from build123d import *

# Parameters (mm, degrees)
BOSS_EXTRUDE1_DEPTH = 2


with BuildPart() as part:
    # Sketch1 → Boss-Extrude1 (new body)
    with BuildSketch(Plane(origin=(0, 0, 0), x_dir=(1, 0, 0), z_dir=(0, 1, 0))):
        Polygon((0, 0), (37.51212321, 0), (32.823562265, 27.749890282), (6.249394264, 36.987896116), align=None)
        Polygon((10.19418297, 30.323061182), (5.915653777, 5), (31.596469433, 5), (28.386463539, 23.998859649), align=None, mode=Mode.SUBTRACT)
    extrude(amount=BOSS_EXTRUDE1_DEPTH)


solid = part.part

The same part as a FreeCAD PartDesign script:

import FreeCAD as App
import Part
import Sketcher
from FreeCAD import Vector
Q = App.Units.Quantity

doc = App.newDocument("Part")
body = doc.addObject("PartDesign::Body", "Body")

# Sketch on XZ plane
sketch1 = body.newObject("Sketcher::SketchObject", "Sketch")
sketch1.AttachmentSupport = (doc.getObject("XZ_Plane"), [""])
sketch1.MapMode = "FlatFace"
sketch1.addGeometry([
    Part.LineSegment(Vector(0, 0, 0), Vector(38, 0, 0)),  # 0
    Part.LineSegment(Vector(38, 0, 0), Vector(33, -28, 0)),  # 1
    Part.LineSegment(Vector(33, -28, 0), Vector(6, -37, 0)),  # 2
    Part.LineSegment(Vector(6, -37, 0), Vector(0, 0, 0)),  # 3
    Part.LineSegment(Vector(6, -5, 0), Vector(10, -30, 0)),  # 4
    Part.LineSegment(Vector(10, -30, 0), Vector(28, -24, 0)),  # 5
    Part.LineSegment(Vector(28, -24, 0), Vector(32, -5, 0)),  # 6
    Part.LineSegment(Vector(32, -5, 0), Vector(6, -5, 0)),  # 7
], False)
sketch1.addConstraint([
    Sketcher.Constraint("Coincident", 0, 2, 1, 1),
    Sketcher.Constraint("Coincident", 1, 2, 2, 1),
    Sketcher.Constraint("Coincident", 2, 2, 3, 1),
    Sketcher.Constraint("Coincident", 3, 2, 0, 1),
    Sketcher.Constraint("Coincident", 4, 2, 5, 1),
    Sketcher.Constraint("Coincident", 5, 2, 6, 1),
    Sketcher.Constraint("Coincident", 6, 2, 7, 1),
    Sketcher.Constraint("Coincident", 7, 2, 4, 1),
    Sketcher.Constraint("Horizontal", 0),
    Sketcher.Constraint("Horizontal", 7),
    Sketcher.Constraint("Coincident", 3, 2, -1, 1),
    Sketcher.Constraint("Parallel", 3, 4),
    Sketcher.Constraint("Parallel", 2, 5),
    Sketcher.Constraint("Parallel", 1, 6),
    Sketcher.Constraint("DistanceY", 6, 2, -1, 1, Q("5 mm")),
    Sketcher.Constraint("Angle", 1, Q("-99.59 deg")),
    Sketcher.Constraint("Angle", 3, Q("99.59 deg")),
    Sketcher.Constraint("DistanceX", 5, 2, 1, 2, Q("4.437099 mm")),
    Sketcher.Constraint("DistanceY", 4, 2, 5, 2, Q("6.324202 mm")),
    Sketcher.Constraint("Distance", 5, Q("19.260182 mm")),
    Sketcher.Constraint("Distance", 6, Q("19.268129 mm")),
    Sketcher.Constraint("DistanceX", 0, 1, 0, 2, Q("37.512123 mm")),
    Sketcher.Constraint("DistanceY", 1, 2, -1, 1, Q("27.74989 mm")),
])
pad1 = body.newObject("PartDesign::Pad", "Pad")
pad1.Profile = sketch1
pad1.Length = 2
pad1.Reversed = True

doc.recompute()
